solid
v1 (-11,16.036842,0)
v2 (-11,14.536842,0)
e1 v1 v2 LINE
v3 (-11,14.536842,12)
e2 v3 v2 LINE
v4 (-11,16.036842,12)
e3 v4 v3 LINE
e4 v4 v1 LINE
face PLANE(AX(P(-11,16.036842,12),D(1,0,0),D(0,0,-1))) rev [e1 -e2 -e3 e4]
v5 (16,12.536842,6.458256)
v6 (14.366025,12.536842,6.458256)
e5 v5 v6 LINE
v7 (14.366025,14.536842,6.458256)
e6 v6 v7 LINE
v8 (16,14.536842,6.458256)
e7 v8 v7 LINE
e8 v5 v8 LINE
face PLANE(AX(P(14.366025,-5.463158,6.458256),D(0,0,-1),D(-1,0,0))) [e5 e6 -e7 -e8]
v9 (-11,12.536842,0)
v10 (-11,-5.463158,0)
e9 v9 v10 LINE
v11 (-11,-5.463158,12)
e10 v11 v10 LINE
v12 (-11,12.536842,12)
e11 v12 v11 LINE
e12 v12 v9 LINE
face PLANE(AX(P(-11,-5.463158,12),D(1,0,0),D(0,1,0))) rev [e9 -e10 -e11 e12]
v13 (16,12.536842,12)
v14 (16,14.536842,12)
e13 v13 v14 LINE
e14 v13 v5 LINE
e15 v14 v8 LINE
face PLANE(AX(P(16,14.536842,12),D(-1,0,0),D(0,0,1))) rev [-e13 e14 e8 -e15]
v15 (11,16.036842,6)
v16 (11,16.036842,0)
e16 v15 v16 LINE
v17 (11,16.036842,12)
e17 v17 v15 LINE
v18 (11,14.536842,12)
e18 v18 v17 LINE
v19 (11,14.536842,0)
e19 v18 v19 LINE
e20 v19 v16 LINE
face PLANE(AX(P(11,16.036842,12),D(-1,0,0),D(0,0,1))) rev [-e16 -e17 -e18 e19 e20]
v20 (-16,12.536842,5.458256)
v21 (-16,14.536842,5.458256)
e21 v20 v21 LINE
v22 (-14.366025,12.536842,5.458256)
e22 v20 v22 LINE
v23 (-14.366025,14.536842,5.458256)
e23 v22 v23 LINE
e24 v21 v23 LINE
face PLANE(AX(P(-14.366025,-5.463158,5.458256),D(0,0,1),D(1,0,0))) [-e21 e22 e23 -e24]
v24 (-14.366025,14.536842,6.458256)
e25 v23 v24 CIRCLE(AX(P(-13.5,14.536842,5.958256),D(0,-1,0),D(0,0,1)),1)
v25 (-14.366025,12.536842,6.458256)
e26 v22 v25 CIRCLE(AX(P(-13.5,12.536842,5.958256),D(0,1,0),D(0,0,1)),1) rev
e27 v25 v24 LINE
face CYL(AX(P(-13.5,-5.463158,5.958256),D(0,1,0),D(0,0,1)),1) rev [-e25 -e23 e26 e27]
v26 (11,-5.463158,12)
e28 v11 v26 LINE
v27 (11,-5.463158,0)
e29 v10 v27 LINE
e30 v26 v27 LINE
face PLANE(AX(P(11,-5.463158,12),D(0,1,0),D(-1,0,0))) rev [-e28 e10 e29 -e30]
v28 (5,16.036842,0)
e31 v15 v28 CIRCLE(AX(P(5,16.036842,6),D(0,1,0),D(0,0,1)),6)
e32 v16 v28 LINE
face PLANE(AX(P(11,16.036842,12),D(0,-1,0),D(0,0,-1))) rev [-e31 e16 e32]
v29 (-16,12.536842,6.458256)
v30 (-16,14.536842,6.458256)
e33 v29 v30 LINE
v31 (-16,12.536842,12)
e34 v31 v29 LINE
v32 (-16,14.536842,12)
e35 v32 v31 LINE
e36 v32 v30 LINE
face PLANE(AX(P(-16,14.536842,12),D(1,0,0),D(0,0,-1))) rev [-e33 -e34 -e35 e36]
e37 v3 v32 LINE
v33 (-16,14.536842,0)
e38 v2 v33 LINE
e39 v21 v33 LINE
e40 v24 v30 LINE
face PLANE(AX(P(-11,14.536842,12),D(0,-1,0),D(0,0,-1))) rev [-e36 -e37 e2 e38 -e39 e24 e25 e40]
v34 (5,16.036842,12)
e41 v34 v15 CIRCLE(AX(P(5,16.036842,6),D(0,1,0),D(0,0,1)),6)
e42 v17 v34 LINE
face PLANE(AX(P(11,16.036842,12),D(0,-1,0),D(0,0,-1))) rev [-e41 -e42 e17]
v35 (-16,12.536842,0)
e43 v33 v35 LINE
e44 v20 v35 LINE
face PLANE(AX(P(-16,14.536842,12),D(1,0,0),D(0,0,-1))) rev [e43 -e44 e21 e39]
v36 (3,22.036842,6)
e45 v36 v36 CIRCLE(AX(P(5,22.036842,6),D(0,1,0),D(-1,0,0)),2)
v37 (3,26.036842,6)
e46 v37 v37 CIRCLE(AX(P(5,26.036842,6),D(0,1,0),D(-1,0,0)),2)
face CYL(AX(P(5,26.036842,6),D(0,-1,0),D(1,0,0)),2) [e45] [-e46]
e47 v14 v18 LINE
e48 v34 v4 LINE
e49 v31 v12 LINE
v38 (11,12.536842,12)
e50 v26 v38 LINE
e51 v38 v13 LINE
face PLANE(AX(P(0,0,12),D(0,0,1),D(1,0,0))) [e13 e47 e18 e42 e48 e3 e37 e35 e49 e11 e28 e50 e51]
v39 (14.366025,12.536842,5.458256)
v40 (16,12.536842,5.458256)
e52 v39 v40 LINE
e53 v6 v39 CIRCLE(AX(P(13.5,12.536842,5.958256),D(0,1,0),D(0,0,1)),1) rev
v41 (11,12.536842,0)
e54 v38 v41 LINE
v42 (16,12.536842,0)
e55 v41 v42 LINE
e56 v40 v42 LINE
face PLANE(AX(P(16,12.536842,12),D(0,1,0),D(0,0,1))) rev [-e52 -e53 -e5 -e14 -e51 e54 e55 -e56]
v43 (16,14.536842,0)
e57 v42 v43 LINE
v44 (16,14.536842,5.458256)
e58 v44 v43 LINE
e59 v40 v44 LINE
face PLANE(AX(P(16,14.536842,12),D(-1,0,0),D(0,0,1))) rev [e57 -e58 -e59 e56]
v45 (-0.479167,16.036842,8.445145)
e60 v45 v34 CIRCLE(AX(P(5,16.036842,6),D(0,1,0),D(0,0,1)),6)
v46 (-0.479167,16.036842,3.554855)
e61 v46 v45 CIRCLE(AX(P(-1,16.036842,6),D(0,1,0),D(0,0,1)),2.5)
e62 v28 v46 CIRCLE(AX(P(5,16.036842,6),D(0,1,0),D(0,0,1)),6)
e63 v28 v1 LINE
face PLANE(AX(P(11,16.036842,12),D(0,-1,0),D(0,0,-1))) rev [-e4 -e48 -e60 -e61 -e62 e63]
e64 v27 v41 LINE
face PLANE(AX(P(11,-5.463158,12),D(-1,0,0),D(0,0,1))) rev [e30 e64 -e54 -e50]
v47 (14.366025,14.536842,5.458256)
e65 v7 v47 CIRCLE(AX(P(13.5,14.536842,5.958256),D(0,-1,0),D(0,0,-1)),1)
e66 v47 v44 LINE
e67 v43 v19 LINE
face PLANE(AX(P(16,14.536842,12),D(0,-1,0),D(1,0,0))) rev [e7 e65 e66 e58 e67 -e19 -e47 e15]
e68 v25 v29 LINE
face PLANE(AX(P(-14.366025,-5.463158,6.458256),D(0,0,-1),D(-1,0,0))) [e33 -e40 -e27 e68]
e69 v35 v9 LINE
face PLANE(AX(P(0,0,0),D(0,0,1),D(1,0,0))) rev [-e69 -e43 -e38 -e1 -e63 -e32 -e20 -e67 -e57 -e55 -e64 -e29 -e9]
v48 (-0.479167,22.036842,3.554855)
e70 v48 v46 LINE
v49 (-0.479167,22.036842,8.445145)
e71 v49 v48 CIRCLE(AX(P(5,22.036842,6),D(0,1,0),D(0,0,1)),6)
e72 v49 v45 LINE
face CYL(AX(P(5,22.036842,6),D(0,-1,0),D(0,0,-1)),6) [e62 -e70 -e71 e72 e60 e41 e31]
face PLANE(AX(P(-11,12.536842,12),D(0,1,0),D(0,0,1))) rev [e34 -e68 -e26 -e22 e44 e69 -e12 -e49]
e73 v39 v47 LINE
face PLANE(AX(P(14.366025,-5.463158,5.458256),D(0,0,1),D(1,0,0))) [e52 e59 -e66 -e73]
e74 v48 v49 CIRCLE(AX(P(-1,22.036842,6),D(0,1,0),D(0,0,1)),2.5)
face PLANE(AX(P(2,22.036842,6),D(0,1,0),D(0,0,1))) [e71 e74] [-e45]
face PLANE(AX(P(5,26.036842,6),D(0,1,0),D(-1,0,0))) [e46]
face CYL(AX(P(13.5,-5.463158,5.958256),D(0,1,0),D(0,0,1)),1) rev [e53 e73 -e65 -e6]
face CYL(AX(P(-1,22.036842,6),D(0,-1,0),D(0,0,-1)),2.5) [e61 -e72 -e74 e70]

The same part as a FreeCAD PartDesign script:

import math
import FreeCAD as App
import Part
import Sketcher
from FreeCAD import Vector


def add_polygon(sketch, points):
    """Adds a closed chain of lines whose ends are joined by coincident constraints."""
    first, n = sketch.GeometryCount, len(points)
    for a, b in zip(points, points[1:] + points[:1]):
        sketch.addGeometry(Part.LineSegment(App.Vector(*a, 0), App.Vector(*b, 0)), False)
    for i in range(n):
        sketch.addConstraint(Sketcher.Constraint("Coincident", first + i, 2, first + (i + 1) % n, 1))

doc = App.newDocument("Part")
body = doc.addObject("PartDesign::Body", "Body")

# Sketch on XY plane
sketch1 = body.newObject("Sketcher::SketchObject", "Sketch")
sketch1.AttachmentSupport = (doc.getObject("XY_Plane"), [""])
sketch1.MapMode = "FlatFace"
add_polygon(sketch1, [(-16, 12.536842), (-11, 12.536842), (-11, -5.463158), (11, -5.463158), (11, 12.536842), (16, 12.536842), (16, 14.536842), (11, 14.536842), (11, 16.036842), (-11, 16.036842), (-11, 14.536842), (-16, 14.536842)])  # lines 0-11
sketch1.addConstraint(Sketcher.Constraint("Horizontal", 0))
sketch1.addConstraint(Sketcher.Constraint("Vertical", 1))
sketch1.addConstraint(Sketcher.Constraint("Horizontal", 2))
sketch1.addConstraint(Sketcher.Constraint("Vertical", 3))
sketch1.addConstraint(Sketcher.Constraint("Horizontal", 4))
sketch1.addConstraint(Sketcher.Constraint("Vertical", 5))
sketch1.addConstraint(Sketcher.Constraint("Horizontal", 6))
sketch1.addConstraint(Sketcher.Constraint("Vertical", 7))
sketch1.addConstraint(Sketcher.Constraint("Horizontal", 8))
sketch1.addConstraint(Sketcher.Constraint("Vertical", 9))
sketch1.addConstraint(Sketcher.Constraint("Horizontal", 10))
sketch1.addConstraint(Sketcher.Constraint("Vertical", 11))
sketch1.addConstraint(Sketcher.Constraint("Symmetric", 0, 2, 3, 2, -2))
sketch1.addConstraint(Sketcher.Constraint("Symmetric", 6, 2, 9, 2, -2))
sketch1.addConstraint(Sketcher.Constraint("Vertical", 3, 2, 6, 2))
sketch1.addConstraint(Sketcher.Constraint("Equal", 0, 4))
sketch1.addConstraint(Sketcher.Constraint("DistanceX", 0, 1, 0, 2, 5.0))
sketch1.addConstraint(Sketcher.Constraint("DistanceX", 2, 1, 2, 2, 22.0))
sketch1.addConstraint(Sketcher.Constraint("DistanceY", 1, 2, 1, 1, 18.0))
sketch1.addConstraint(Sketcher.Constraint("DistanceY", 5, 1, 5, 2, 2.0))
sketch1.addConstraint(Sketcher.Constraint("DistanceY", 7, 1, 7, 2, 1.5))
sketch1.addConstraint(Sketcher.Constraint("DistanceY", -1, 1, 0, 2, 12.536842))
pad1 = body.newObject("PartDesign::Pad", "Pad")
pad1.Profile = sketch1
pad1.Length = 12

# Sketch on XZ plane
sketch2 = body.newObject("Sketcher::SketchObject", "Sketch001")
sketch2.AttachmentSupport = (doc.getObject("XZ_Plane"), [""])
sketch2.MapMode = "FlatFace"
sketch2.AttachmentOffset = App.Placement(Vector(0, 0, -16.036842), App.Rotation())
sketch2.addGeometry(Part.ArcOfCircle(Part.Circle(Vector(5, 6, 0), Vector(0, 0, 1), 6), math.radians(-155.950602), math.radians(155.950602)), False)
sketch2.addGeometry(Part.ArcOfCircle(Part.Circle(Vector(-1, 6, 0), Vector(0, 0, 1), 2.5), math.radians(77.975301), math.radians(282.024699)), False)
sketch2.addConstraint(Sketcher.Constraint("Coincident", 0, 1, 1, 2))
sketch2.addConstraint(Sketcher.Constraint("Coincident", 1, 1, 0, 2))
sketch2.addConstraint(Sketcher.Constraint("Horizontal", 0, 3, 1, 3))
sketch2.addConstraint(Sketcher.Constraint("Radius", 0, 6.0))
sketch2.addConstraint(Sketcher.Constraint("Radius", 1, 2.5))
sketch2.addConstraint(Sketcher.Constraint("DistanceX", -1, 1, 0, 3, 5.0))
sketch2.addConstraint(Sketcher.Constraint("DistanceY", -1, 1, 0, 3, 6.0))
sketch2.addConstraint(Sketcher.Constraint("DistanceX", 1, 3, -1, 1, 1.0))
pad2 = body.newObject("PartDesign::Pad", "Pad001")
pad2.Profile = sketch2
pad2.Length = 6
pad2.Reversed = True

# Sketch on XZ plane
sketch3 = body.newObject("Sketcher::SketchObject", "Sketch002")
sketch3.AttachmentSupport = (doc.getObject("XZ_Plane"), [""])
sketch3.MapMode = "FlatFace"
sketch3.AttachmentOffset = App.Placement(Vector(0, 0, -22.036842), App.Rotation())
sketch3.addGeometry(Part.Circle(Vector(5, 6, 0), Vector(0, 0, 1), 2), False)
sketch3.addConstraint(Sketcher.Constraint("Diameter", 0, 4.0))
sketch3.addConstraint(Sketcher.Constraint("DistanceX", -1, 1, 0, 3, 5.0))
sketch3.addConstraint(Sketcher.Constraint("DistanceY", -1, 1, 0, 3, 6.0))
pad3 = body.newObject("PartDesign::Pad", "Pad002")
pad3.Profile = sketch3
pad3.Length = 4
pad3.Reversed = True

# Sketch on XZ plane
sketch4 = body.newObject("Sketcher::SketchObject", "Sketch003")
sketch4.AttachmentSupport = (doc.getObject("XZ_Plane"), [""])
sketch4.MapMode = "FlatFace"
sketch4.AttachmentOffset = App.Placement(Vector(0, 0, -14.536842), App.Rotation())
sketch4.addGeometry(Part.LineSegment(Vector(16, 6.458256, 0), Vector(14.366025, 6.458256, 0)), False)
sketch4.addGeometry(Part.ArcOfCircle(Part.Circle(Vector(13.5, 5.958256, 0), Vector(0, 0, 1), 1), math.radians(30), math.radians(330)), False)
sketch4.addGeometry(Part.LineSegment(Vector(14.366025, 5.458256, 0), Vector(16, 5.458256, 0)), False)
sketch4.addGeometry(Part.LineSegment(Vector(16, 5.458256, 0), Vector(16, 6.458256, 0)), False)
sketch4.addGeometry(Part.LineSegment(Vector(-16, 6.458256, 0), Vector(-16, 5.458256, 0)), False)
sketch4.addGeometry(Part.LineSegment(Vector(-16, 5.458256, 0), Vector(-14.366025, 5.458256, 0)), False)
sketch4.addGeometry(Part.ArcOfCircle(Part.Circle(Vector(-13.5, 5.958256, 0), Vector(0, 0, 1), 1), math.radians(-150), math.radians(150)), False)
sketch4.addGeometry(Part.LineSegment(Vector(-14.366025, 6.458256, 0), Vector(-16, 6.458256, 0)), False)
sketch4.addConstraint(Sketcher.Constraint("Coincident", 0, 2, 1, 1))
sketch4.addConstraint(Sketcher.Constraint("Coincident", 1, 2, 2, 1))
sketch4.addConstraint(Sketcher.Constraint("Coincident", 2, 2, 3, 1))
sketch4.addConstraint(Sketcher.Constraint("Coincident", 3, 2, 0, 1))
sketch4.addConstraint(Sketcher.Constraint("Coincident", 4, 2, 5, 1))
sketch4.addConstraint(Sketcher.Constraint("Coincident", 5, 2, 6, 1))
sketch4.addConstraint(Sketcher.Constraint("Coincident", 6, 2, 7, 1))
sketch4.addConstraint(Sketcher.Constraint("Coincident", 7, 2, 4, 1))
sketch4.addConstraint(Sketcher.Constraint("Horizontal", 0))
sketch4.addConstraint(Sketcher.Constraint("Horizontal", 2))
sketch4.addConstraint(Sketcher.Constraint("Vertical", 3))
sketch4.addConstraint(Sketcher.Constraint("Vertical", 4))
sketch4.addConstraint(Sketcher.Constraint("Horizontal", 5))
sketch4.addConstraint(Sketcher.Constraint("Horizontal", 7))
sketch4.addConstraint(Sketcher.Constraint("Equal", 1, 6))
sketch4.addConstraint(Sketcher.Constraint("Symmetric", 1, 3, 6, 3, -2))
sketch4.addConstraint(Sketcher.Constraint("Symmetric", 2, 2, 4, 2, -2))
sketch4.addConstraint(Sketcher.Constraint("Horizontal", 3, 2, 6, 2))
sketch4.addConstraint(Sketcher.Constraint("Vertical", 0, 2, 1, 2))
sketch4.addConstraint(Sketcher.Constraint("Radius", 1, 1.0))
sketch4.addConstraint(Sketcher.Constraint("DistanceY", 3, 1, 3, 2, 1.0))
sketch4.addConstraint(Sketcher.Constraint("DistanceX", -1, 1, 2, 2, 16.0))
sketch4.addConstraint(Sketcher.Constraint("DistanceX", 6, 3, 1, 3, 27.0))
sketch4.addConstraint(Sketcher.Constraint("DistanceY", -1, 1, 1, 3, 5.958256))
pocket1 = body.newObject("PartDesign::Pocket", "Pocket")
pocket1.Profile = sketch4
pocket1.Type = "ThroughAll"
pocket1.Reversed = True

doc.recompute()
